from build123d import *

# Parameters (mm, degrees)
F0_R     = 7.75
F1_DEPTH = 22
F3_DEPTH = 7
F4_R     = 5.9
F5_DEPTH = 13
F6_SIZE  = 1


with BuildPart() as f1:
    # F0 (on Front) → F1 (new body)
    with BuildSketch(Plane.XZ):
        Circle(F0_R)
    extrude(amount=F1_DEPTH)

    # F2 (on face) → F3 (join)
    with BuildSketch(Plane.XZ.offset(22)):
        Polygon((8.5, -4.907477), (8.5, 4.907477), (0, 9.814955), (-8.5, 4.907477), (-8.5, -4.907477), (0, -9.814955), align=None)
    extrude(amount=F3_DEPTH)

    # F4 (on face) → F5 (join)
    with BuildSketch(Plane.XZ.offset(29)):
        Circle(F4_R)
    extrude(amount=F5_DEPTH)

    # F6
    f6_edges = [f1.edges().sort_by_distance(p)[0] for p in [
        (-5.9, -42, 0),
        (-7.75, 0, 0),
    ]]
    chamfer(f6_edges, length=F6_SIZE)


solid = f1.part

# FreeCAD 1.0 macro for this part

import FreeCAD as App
import Part
import Sketcher
from FreeCAD import Vector
Q = App.Units.Quantity


def edges_at(feature, points):
    """Names of the edges that pass closest to the given points."""
    edges = feature.Shape.Edges
    near = lambda p: min(range(len(edges)), key=lambda i: edges[i].distToShape(Part.Vertex(*p))[0])
    return sorted({f"Edge{near(p) + 1}" for p in points})


def add_polygon(sketch, points):
    """Adds a closed chain of lines whose ends are joined by coincident constraints."""
    first, n = sketch.GeometryCount, len(points)
    for a, b in zip(points, points[1:] + points[:1]):
        sketch.addGeometry(Part.LineSegment(App.Vector(*a, 0), App.Vector(*b, 0)), False)
    for i in range(n):
        sketch.addConstraint(Sketcher.Constraint("Coincident", first + i, 2, first + (i + 1) % n, 1))

doc = App.newDocument("Part")
body = doc.addObject("PartDesign::Body", "Body")

sketch1 = doc.addObject("Sketcher::SketchObject", "Sketch")
body.addObject(sketch1)
sketch1.AttachmentSupport = (doc.XZ_Plane, [""])
sketch1.MapMode = "FlatFace"
sketch1.addGeometry(Part.Circle(Vector(0, 0, 0), Vector(0, 0, 1), 8), False)
sketch1.addConstraint(Sketcher.Constraint("Coincident", 0, 3, -1, 1))
sketch1.addConstraint(Sketcher.Constraint("Diameter", 0, 15.5))
pad1 = doc.addObject("PartDesign::Pad", "Pad")
body.addObject(pad1)
pad1.Profile = sketch1
pad1.Length = 22

sketch2 = doc.addObject("Sketcher::SketchObject", "Sketch001")
body.addObject(sketch2)
sketch2.AttachmentSupport = (doc.XZ_Plane, [""])
sketch2.MapMode = "FlatFace"
sketch2.AttachmentOffset = App.Placement(Vector(0, 0, 22), App.Rotation())
add_polygon(sketch2, [(8, -5), (8, 5), (0, 10), (-8, 5), (-8, -5), (0, -10)])
sketch2.addConstraint(Sketcher.Constraint("Vertical", 0))
sketch2.addConstraint(Sketcher.Constraint("Vertical", 3))
sketch2.addConstraint(Sketcher.Constraint("Symmetric", 0, 2, 3, 2, -1, 1))
sketch2.addConstraint(Sketcher.Constraint("Symmetric", 1, 2, 4, 2, -1, 1))
sketch2.addConstraint(Sketcher.Constraint("PointOnObject", 1, 2, -2))
sketch2.addConstraint(Sketcher.Constraint("Parallel", 2, 5))
sketch2.addConstraint(Sketcher.Constraint("Horizontal", 0, 2, 2, 2))
sketch2.addConstraint(Sketcher.Constraint("Angle", 1, Q("149.999996 deg")))
sketch2.addConstraint(Sketcher.Constraint("DistanceX", 2, 2, 0, 2, 17.0))
sketch2.addConstraint(Sketcher.Constraint("DistanceY", 0, 1, 0, 2, 9.814954))
pad2 = doc.addObject("PartDesign::Pad", "Pad001")
body.addObject(pad2)
pad2.Profile = sketch2
pad2.Length = 7

sketch3 = doc.addObject("Sketcher::SketchObject", "Sketch002")
body.addObject(sketch3)
sketch3.AttachmentSupport = (doc.XZ_Plane, [""])
sketch3.MapMode = "FlatFace"
sketch3.AttachmentOffset = App.Placement(Vector(0, 0, 29), App.Rotation())
sketch3.addGeometry(Part.Circle(Vector(0, 0, 0), Vector(0, 0, 1), 6), False)
sketch3.addConstraint(Sketcher.Constraint("Coincident", 0, 3, -1, 1))
sketch3.addConstraint(Sketcher.Constraint("Diameter", 0, 11.8))
pad3 = doc.addObject("PartDesign::Pad", "Pad002")
body.addObject(pad3)
pad3.Profile = sketch3
pad3.Length = 13
doc.recompute()

chamfer = doc.addObject("PartDesign::Chamfer", "Chamfer")
body.addObject(chamfer)
chamfer.Base = (pad3, edges_at(pad3, [(-5.9, -42, 0), (-7.75, 0, 0)]))
chamfer.Size = 1

doc.recompute()
